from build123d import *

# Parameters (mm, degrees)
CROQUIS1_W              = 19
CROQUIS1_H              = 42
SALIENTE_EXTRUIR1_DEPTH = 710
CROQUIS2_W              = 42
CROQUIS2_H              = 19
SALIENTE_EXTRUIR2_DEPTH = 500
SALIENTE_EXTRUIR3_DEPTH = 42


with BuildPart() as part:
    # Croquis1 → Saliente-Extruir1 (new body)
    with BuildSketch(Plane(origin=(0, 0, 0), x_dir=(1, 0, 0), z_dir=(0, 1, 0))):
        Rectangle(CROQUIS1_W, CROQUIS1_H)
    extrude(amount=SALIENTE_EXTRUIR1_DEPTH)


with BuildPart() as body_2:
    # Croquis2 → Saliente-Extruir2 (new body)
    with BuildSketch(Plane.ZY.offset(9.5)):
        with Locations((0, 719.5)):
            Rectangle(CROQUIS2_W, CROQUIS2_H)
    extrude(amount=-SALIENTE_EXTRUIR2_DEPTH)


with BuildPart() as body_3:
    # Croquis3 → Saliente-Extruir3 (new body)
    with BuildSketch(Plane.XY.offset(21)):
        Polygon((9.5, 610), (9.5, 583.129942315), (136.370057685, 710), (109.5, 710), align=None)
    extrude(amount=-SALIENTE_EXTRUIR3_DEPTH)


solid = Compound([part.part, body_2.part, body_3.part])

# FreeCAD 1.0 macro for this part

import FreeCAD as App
import Part
import Sketcher

V = App.Vector

doc = App.newDocument("Part")
body = doc.addObject("PartDesign::Body", "Body")

# Sketch on XZ plane
sketch1 = body.newObject("Sketcher::SketchObject", "Sketch")
sketch1.AttachmentSupport = (doc.getObject("XZ_Plane"), [""])
sketch1.MapMode = "FlatFace"
sketch1.addGeometry([
    Part.LineSegment(V(-10, -21, 0), V(-10, 21, 0)),
    Part.LineSegment(V(-10, 21, 0), V(10, 21, 0)),
    Part.LineSegment(V(10, 21, 0), V(10, -21, 0)),
    Part.LineSegment(V(10, -21, 0), V(-10, -21, 0)),
], False)
sketch1.addConstraint([
    Sketcher.Constraint("Coincident", 0, 2, 1, 1),
    Sketcher.Constraint("Coincident", 1, 2, 2, 1),
    Sketcher.Constraint("Coincident", 2, 2, 3, 1),
    Sketcher.Constraint("Coincident", 3, 2, 0, 1),
    Sketcher.Constraint("Vertical", 0),
    Sketcher.Constraint("Horizontal", 1),
    Sketcher.Constraint("Vertical", 2),
    Sketcher.Constraint("Horizontal", 3),
    Sketcher.Constraint("Symmetric", 0, 2, 2, 2, -1, 1),
    Sketcher.Constraint("DistanceX", 1, 1, 1, 2, 19.0),
    Sketcher.Constraint("DistanceY", 0, 1, 0, 2, 42.0),
])
pad1 = body.newObject("PartDesign::Pad", "Pad")
pad1.Profile = sketch1
pad1.Length = 710
pad1.Reversed = True
body2 = doc.addObject("PartDesign::Body", "Body001")

# Sketch on YZ plane
sketch2 = body2.newObject("Sketcher::SketchObject", "Sketch001")
sketch2.AttachmentSupport = (doc.getObject("YZ_Plane001"), [""])
sketch2.MapMode = "FlatFace"
sketch2.AttachmentOffset = App.Placement(V(0, 0, -9.5), App.Rotation())
sketch2.addGeometry([
    Part.LineSegment(V(729, -21, 0), V(710, -21, 0)),
    Part.LineSegment(V(710, -21, 0), V(710, 21, 0)),
    Part.LineSegment(V(710, 21, 0), V(729, 21, 0)),
    Part.LineSegment(V(729, 21, 0), V(729, -21, 0)),
], False)
sketch2.addConstraint([
    Sketcher.Constraint("Coincident", 0, 2, 1, 1),
    Sketcher.Constraint("Coincident", 1, 2, 2, 1),
    Sketcher.Constraint("Coincident", 2, 2, 3, 1),
    Sketcher.Constraint("Coincident", 3, 2, 0, 1),
    Sketcher.Constraint("Horizontal", 0),
    Sketcher.Constraint("Vertical", 1),
    Sketcher.Constraint("Horizontal", 2),
    Sketcher.Constraint("Vertical", 3),
    Sketcher.Constraint("DistanceX", 0, 2, 0, 1, 19.0),
    Sketcher.Constraint("DistanceY", 1, 1, 1, 2, 42.0),
    Sketcher.Constraint("DistanceX", -1, 1, 0, 2, 710.0),
    Sketcher.Constraint("DistanceY", 0, 2, -1, 1, 21.0),
])
pad2 = body2.newObject("PartDesign::Pad", "Pad001")
pad2.Profile = sketch2
pad2.Length = 500
body3 = doc.addObject("PartDesign::Body", "Body002")

# Sketch on XY plane
sketch3 = body3.newObject("Sketcher::SketchObject", "Sketch002")
sketch3.AttachmentSupport = (doc.getObject("XY_Plane002"), [""])
sketch3.MapMode = "FlatFace"
sketch3.AttachmentOffset = App.Placement(V(0, 0, 21), App.Rotation())
sketch3.addGeometry([
    Part.LineSegment(V(10, 610, 0), V(10, 583, 0)),
    Part.LineSegment(V(10, 583, 0), V(136, 710, 0)),
    Part.LineSegment(V(136, 710, 0), V(110, 710, 0)),
    Part.LineSegment(V(110, 710, 0), V(10, 610, 0)),
], False)
sketch3.addConstraint([
    Sketcher.Constraint("Coincident", 0, 2, 1, 1),
    Sketcher.Constraint("Coincident", 1, 2, 2, 1),
    Sketcher.Constraint("Coincident", 2, 2, 3, 1),
    Sketcher.Constraint("Coincident", 3, 2, 0, 1),
    Sketcher.Constraint("Vertical", 0),
    Sketcher.Constraint("Horizontal", 2),
    Sketcher.Constraint("Parallel", 1, 3),
    Sketcher.Constraint("Equal", 2, 0),
    Sketcher.Constraint("DistanceY", -1, 1, 1, 2, 710.0),
    Sketcher.Constraint("DistanceY", -1, 1, 3, 2, 610.0),
    Sketcher.Constraint("DistanceX", -1, 1, 0, 2, 9.5),
    Sketcher.Constraint("DistanceX", 2, 2, 2, 1, 26.870058),
])
pad3 = body3.newObject("PartDesign::Pad", "Pad002")
pad3.Profile = sketch3
pad3.Length = 42
pad3.Reversed = True

doc.recompute()
